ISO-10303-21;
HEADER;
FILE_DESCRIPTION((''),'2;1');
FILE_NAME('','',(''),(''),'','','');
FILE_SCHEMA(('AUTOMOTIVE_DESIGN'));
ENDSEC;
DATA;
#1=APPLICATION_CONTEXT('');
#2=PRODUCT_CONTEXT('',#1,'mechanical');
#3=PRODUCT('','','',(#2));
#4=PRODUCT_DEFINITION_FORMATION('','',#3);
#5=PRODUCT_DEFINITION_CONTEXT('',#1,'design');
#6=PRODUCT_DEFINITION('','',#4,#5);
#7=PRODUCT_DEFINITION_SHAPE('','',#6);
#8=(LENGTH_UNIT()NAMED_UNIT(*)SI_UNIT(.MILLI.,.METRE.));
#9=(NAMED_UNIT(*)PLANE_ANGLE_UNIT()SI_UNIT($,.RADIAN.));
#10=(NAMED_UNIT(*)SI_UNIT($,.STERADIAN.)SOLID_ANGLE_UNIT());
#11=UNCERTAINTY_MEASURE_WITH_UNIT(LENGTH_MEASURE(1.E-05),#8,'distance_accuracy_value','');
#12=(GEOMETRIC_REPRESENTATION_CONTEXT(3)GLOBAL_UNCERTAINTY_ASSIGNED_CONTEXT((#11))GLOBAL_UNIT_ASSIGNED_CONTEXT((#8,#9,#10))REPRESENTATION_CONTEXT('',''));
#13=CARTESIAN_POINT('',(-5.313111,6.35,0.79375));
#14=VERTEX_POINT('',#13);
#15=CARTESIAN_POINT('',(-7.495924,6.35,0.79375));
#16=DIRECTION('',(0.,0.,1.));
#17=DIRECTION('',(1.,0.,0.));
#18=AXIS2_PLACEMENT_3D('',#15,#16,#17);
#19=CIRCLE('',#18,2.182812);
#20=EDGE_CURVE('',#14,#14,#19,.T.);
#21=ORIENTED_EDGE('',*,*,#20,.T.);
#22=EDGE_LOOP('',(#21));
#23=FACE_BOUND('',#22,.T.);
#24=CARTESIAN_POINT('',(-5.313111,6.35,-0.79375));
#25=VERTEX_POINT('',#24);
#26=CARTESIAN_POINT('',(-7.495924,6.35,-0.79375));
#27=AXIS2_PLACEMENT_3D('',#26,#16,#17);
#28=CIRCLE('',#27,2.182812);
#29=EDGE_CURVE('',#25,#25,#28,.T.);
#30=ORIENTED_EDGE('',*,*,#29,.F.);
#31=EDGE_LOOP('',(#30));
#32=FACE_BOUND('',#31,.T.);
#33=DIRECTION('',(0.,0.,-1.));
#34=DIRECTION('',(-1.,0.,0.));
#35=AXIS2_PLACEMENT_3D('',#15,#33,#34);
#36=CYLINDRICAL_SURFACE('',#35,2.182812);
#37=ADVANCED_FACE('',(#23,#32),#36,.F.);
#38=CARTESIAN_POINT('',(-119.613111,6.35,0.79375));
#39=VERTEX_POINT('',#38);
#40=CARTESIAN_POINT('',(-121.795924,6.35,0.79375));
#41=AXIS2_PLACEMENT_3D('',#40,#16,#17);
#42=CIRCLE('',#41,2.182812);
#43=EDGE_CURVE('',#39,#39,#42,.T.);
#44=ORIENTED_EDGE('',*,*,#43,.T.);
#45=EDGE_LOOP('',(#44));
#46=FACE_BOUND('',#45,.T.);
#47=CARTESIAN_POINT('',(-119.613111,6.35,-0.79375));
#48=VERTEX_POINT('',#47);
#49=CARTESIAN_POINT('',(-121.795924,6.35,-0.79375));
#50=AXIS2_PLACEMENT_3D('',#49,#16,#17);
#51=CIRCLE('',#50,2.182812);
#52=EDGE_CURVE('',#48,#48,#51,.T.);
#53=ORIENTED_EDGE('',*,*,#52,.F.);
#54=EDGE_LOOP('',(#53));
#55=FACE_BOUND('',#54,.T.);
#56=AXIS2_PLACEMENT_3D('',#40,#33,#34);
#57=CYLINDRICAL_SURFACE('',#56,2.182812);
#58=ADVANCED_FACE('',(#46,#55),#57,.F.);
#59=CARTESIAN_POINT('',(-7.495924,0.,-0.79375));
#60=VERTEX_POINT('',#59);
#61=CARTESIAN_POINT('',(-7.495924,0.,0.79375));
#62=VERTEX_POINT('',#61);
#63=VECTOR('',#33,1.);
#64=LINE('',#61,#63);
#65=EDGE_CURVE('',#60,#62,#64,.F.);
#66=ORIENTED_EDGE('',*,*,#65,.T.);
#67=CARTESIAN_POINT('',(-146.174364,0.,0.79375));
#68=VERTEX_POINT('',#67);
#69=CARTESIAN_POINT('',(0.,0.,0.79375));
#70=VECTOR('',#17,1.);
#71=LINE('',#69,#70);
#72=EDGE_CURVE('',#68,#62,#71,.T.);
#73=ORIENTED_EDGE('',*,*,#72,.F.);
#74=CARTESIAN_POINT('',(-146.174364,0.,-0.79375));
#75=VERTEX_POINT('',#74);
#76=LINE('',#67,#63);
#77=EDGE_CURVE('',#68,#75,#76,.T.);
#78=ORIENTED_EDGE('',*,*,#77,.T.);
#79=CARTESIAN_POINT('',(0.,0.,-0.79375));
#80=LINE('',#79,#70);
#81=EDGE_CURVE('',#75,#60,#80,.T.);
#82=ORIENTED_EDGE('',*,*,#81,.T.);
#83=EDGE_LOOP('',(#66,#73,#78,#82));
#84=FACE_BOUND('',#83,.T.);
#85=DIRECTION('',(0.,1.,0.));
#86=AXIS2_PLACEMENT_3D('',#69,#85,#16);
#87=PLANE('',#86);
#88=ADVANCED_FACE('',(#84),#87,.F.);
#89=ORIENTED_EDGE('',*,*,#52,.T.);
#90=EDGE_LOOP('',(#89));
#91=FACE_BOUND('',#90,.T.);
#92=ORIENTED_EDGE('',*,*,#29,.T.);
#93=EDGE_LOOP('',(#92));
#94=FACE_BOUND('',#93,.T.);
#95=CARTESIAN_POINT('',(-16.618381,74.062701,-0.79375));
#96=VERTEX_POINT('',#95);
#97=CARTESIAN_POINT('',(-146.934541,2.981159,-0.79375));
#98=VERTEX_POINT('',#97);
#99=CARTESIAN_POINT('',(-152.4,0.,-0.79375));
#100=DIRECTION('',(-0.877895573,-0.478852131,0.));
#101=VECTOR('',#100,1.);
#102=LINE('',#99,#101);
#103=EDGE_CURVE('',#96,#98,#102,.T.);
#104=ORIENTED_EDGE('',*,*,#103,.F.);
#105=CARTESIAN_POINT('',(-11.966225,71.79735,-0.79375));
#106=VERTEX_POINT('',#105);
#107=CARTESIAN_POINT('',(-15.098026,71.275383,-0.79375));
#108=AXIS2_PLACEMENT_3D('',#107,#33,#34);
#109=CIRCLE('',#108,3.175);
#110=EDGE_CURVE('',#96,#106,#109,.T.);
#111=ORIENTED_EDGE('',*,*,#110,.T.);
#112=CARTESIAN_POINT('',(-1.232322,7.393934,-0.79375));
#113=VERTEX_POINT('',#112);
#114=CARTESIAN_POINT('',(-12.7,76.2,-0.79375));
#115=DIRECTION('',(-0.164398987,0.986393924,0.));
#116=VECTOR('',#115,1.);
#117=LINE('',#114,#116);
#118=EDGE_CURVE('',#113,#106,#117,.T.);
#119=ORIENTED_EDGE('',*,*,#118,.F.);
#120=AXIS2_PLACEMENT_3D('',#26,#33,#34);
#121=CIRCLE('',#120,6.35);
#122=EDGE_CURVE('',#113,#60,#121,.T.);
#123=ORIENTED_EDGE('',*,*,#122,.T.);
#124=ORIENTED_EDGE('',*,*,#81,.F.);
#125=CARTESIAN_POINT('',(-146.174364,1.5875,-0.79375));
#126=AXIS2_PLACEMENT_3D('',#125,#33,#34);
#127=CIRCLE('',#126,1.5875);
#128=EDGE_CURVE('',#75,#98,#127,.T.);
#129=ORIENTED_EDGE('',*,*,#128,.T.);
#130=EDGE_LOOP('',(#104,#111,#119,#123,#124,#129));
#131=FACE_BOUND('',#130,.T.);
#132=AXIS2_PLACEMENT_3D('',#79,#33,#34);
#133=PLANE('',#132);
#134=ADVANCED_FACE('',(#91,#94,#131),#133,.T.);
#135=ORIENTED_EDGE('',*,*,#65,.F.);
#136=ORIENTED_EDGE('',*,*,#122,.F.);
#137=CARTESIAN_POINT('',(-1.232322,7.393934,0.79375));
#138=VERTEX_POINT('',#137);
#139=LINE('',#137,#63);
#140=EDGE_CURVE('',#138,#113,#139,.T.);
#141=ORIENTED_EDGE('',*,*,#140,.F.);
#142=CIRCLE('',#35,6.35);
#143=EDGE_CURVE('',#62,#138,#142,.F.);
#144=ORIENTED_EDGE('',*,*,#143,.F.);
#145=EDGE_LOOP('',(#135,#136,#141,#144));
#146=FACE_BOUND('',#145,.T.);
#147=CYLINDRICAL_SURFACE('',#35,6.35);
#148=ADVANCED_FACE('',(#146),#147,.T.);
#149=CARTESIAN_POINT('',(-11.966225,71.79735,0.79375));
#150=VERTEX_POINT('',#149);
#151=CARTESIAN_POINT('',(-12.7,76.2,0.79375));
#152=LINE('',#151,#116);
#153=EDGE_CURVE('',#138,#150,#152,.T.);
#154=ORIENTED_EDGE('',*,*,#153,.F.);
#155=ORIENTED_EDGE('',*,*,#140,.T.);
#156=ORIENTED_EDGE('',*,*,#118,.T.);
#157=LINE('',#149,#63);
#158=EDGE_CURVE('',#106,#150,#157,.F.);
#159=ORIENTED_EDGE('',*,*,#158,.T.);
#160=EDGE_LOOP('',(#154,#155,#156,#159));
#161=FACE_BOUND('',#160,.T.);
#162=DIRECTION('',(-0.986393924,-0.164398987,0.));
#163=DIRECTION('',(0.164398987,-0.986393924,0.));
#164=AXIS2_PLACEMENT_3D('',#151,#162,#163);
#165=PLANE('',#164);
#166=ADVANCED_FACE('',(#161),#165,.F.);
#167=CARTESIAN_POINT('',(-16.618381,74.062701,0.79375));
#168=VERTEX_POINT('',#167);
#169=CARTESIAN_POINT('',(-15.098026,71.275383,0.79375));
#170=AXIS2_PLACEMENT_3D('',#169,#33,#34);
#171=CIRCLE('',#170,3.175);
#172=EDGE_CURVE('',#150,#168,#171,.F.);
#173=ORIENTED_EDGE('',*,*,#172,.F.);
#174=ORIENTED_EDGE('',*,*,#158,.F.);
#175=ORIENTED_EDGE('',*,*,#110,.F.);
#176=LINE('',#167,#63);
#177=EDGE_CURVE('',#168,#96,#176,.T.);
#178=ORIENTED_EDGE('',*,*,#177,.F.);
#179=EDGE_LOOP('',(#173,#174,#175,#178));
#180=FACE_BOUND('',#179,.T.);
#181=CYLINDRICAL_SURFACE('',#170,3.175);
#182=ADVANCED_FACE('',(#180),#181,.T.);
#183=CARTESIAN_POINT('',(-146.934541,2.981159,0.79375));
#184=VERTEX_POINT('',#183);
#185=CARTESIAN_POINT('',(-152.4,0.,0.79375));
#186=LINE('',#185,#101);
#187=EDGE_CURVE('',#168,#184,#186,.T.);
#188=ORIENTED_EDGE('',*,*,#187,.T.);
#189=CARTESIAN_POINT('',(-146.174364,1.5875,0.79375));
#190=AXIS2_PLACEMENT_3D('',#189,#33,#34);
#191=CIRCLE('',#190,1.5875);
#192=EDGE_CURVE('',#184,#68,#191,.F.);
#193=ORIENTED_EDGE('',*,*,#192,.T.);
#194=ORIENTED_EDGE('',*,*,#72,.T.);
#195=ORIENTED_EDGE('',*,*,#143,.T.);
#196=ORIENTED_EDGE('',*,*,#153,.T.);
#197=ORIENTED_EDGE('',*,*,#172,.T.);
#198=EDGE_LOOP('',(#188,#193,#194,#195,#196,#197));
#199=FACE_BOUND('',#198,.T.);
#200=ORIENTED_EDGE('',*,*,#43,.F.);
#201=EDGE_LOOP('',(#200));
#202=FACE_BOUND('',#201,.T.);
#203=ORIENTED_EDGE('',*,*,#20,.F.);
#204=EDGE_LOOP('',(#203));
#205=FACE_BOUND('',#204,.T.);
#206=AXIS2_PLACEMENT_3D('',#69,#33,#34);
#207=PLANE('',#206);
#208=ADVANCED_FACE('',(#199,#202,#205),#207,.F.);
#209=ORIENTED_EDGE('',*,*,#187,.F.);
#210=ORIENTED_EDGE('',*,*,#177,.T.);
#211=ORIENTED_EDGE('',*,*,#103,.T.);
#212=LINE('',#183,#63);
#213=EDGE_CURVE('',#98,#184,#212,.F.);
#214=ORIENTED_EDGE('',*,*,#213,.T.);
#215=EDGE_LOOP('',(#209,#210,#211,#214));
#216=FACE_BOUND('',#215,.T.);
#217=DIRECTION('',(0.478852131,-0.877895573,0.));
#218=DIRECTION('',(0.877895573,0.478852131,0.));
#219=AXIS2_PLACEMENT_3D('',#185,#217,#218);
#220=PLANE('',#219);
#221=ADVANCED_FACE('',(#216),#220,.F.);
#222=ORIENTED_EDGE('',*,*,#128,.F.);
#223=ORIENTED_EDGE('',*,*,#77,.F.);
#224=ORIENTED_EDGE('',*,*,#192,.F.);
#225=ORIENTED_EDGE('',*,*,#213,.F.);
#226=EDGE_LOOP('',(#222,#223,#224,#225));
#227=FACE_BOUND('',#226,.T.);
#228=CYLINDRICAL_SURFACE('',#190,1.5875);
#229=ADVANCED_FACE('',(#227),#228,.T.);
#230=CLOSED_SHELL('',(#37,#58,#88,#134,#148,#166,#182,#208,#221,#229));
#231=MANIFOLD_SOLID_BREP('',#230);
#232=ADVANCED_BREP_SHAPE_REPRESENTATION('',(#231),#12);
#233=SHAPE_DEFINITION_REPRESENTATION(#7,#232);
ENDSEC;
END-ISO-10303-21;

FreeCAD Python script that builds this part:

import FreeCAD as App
import Part
import Sketcher

V = App.Vector
Q = App.Units.Quantity


def edges_at(feature, points):
    """Names of the edges that pass closest to the given points."""
    edges = feature.Shape.Edges
    near = lambda p: min(range(len(edges)), key=lambda i: edges[i].distToShape(Part.Vertex(*p))[0])
    return sorted({f"Edge{near(p) + 1}" for p in points})

doc = App.newDocument("Part")
body = doc.addObject("PartDesign::Body", "Body")

sketch1 = body.newObject("Sketcher::SketchObject", "Sketch")
sketch1.AttachmentSupport = (doc.getObject("XY_Plane"), [""])
sketch1.MapMode = "FlatFace"
sketch1.addGeometry(Part.LineSegment(V(-152.4, 0, 0), V(0, 0, 0)), False)
sketch1.addGeometry(Part.LineSegment(V(0, 0, 0), V(-12.7, 76.2, 0)), False)
sketch1.addGeometry(Part.LineSegment(V(-12.7, 76.2, 0), V(-152.4, 0, 0)), False)
sketch1.addGeometry(Part.Circle(V(-7.5, 6.3, 0), V(0, 0, 1), 2.2), False)
sketch1.addGeometry(Part.Circle(V(-121.8, 6.3, 0), V(0, 0, 1), 2.2), False)
sketch1.addConstraint(Sketcher.Constraint("Coincident", 0, 2, 1, 1))
sketch1.addConstraint(Sketcher.Constraint("Coincident", 1, 2, 2, 1))
sketch1.addConstraint(Sketcher.Constraint("Coincident", 2, 2, 0, 1))
sketch1.addConstraint(Sketcher.Constraint("Horizontal", 0))
sketch1.addConstraint(Sketcher.Constraint("Coincident", 0, 2, -1, 1))
sketch1.addConstraint(Sketcher.Constraint("Equal", 3, 4))
sketch1.addConstraint(Sketcher.Constraint("Horizontal", 3, 3, 4, 3))
sketch1.addConstraint(Sketcher.Constraint("DistanceX", 0, 1, 0, 2, Q("6 in")))
sketch1.addConstraint(Sketcher.Constraint("Diameter", 3, Q("0.171875 in")))
sketch1.addConstraint(Sketcher.Constraint("DistanceY", -1, 1, 1, 2, Q("3 in")))
sketch1.addConstraint(Sketcher.Constraint("DistanceX", 1, 2, -1, 1, Q("0.5 in")))
sketch1.addConstraint(Sketcher.Constraint("DistanceX", 4, 3, 3, 3, Q("4.5 in")))
sketch1.addConstraint(Sketcher.Constraint("DistanceY", -1, 1, 3, 3, Q("0.25 in")))
sketch1.addConstraint(Sketcher.Constraint("DistanceX", 3, 3, -1, 1, 7.495924))
pad1 = body.newObject("PartDesign::Pad", "Pad")
pad1.Profile = sketch1
pad1.Length = Q("0.0625 in")
pad1.Midplane = True
doc.recompute()

fillet = body.newObject("PartDesign::Fillet", "Fillet")
fillet.Base = (pad1, edges_at(pad1, [(0, 0, 0)]))
fillet.Radius = Q("0.25 in")
doc.recompute()

fillet2 = body.newObject("PartDesign::Fillet", "Fillet001")
fillet2.Base = (fillet, edges_at(fillet, [(-12.7, 76.2, 0)]))
fillet2.Radius = Q("0.125 in")
doc.recompute()

fillet3 = body.newObject("PartDesign::Fillet", "Fillet002")
fillet3.Base = (fillet2, edges_at(fillet2, [(-152.4, 0, 0)]))
fillet3.Radius = Q("0.0625 in")

doc.recompute()
